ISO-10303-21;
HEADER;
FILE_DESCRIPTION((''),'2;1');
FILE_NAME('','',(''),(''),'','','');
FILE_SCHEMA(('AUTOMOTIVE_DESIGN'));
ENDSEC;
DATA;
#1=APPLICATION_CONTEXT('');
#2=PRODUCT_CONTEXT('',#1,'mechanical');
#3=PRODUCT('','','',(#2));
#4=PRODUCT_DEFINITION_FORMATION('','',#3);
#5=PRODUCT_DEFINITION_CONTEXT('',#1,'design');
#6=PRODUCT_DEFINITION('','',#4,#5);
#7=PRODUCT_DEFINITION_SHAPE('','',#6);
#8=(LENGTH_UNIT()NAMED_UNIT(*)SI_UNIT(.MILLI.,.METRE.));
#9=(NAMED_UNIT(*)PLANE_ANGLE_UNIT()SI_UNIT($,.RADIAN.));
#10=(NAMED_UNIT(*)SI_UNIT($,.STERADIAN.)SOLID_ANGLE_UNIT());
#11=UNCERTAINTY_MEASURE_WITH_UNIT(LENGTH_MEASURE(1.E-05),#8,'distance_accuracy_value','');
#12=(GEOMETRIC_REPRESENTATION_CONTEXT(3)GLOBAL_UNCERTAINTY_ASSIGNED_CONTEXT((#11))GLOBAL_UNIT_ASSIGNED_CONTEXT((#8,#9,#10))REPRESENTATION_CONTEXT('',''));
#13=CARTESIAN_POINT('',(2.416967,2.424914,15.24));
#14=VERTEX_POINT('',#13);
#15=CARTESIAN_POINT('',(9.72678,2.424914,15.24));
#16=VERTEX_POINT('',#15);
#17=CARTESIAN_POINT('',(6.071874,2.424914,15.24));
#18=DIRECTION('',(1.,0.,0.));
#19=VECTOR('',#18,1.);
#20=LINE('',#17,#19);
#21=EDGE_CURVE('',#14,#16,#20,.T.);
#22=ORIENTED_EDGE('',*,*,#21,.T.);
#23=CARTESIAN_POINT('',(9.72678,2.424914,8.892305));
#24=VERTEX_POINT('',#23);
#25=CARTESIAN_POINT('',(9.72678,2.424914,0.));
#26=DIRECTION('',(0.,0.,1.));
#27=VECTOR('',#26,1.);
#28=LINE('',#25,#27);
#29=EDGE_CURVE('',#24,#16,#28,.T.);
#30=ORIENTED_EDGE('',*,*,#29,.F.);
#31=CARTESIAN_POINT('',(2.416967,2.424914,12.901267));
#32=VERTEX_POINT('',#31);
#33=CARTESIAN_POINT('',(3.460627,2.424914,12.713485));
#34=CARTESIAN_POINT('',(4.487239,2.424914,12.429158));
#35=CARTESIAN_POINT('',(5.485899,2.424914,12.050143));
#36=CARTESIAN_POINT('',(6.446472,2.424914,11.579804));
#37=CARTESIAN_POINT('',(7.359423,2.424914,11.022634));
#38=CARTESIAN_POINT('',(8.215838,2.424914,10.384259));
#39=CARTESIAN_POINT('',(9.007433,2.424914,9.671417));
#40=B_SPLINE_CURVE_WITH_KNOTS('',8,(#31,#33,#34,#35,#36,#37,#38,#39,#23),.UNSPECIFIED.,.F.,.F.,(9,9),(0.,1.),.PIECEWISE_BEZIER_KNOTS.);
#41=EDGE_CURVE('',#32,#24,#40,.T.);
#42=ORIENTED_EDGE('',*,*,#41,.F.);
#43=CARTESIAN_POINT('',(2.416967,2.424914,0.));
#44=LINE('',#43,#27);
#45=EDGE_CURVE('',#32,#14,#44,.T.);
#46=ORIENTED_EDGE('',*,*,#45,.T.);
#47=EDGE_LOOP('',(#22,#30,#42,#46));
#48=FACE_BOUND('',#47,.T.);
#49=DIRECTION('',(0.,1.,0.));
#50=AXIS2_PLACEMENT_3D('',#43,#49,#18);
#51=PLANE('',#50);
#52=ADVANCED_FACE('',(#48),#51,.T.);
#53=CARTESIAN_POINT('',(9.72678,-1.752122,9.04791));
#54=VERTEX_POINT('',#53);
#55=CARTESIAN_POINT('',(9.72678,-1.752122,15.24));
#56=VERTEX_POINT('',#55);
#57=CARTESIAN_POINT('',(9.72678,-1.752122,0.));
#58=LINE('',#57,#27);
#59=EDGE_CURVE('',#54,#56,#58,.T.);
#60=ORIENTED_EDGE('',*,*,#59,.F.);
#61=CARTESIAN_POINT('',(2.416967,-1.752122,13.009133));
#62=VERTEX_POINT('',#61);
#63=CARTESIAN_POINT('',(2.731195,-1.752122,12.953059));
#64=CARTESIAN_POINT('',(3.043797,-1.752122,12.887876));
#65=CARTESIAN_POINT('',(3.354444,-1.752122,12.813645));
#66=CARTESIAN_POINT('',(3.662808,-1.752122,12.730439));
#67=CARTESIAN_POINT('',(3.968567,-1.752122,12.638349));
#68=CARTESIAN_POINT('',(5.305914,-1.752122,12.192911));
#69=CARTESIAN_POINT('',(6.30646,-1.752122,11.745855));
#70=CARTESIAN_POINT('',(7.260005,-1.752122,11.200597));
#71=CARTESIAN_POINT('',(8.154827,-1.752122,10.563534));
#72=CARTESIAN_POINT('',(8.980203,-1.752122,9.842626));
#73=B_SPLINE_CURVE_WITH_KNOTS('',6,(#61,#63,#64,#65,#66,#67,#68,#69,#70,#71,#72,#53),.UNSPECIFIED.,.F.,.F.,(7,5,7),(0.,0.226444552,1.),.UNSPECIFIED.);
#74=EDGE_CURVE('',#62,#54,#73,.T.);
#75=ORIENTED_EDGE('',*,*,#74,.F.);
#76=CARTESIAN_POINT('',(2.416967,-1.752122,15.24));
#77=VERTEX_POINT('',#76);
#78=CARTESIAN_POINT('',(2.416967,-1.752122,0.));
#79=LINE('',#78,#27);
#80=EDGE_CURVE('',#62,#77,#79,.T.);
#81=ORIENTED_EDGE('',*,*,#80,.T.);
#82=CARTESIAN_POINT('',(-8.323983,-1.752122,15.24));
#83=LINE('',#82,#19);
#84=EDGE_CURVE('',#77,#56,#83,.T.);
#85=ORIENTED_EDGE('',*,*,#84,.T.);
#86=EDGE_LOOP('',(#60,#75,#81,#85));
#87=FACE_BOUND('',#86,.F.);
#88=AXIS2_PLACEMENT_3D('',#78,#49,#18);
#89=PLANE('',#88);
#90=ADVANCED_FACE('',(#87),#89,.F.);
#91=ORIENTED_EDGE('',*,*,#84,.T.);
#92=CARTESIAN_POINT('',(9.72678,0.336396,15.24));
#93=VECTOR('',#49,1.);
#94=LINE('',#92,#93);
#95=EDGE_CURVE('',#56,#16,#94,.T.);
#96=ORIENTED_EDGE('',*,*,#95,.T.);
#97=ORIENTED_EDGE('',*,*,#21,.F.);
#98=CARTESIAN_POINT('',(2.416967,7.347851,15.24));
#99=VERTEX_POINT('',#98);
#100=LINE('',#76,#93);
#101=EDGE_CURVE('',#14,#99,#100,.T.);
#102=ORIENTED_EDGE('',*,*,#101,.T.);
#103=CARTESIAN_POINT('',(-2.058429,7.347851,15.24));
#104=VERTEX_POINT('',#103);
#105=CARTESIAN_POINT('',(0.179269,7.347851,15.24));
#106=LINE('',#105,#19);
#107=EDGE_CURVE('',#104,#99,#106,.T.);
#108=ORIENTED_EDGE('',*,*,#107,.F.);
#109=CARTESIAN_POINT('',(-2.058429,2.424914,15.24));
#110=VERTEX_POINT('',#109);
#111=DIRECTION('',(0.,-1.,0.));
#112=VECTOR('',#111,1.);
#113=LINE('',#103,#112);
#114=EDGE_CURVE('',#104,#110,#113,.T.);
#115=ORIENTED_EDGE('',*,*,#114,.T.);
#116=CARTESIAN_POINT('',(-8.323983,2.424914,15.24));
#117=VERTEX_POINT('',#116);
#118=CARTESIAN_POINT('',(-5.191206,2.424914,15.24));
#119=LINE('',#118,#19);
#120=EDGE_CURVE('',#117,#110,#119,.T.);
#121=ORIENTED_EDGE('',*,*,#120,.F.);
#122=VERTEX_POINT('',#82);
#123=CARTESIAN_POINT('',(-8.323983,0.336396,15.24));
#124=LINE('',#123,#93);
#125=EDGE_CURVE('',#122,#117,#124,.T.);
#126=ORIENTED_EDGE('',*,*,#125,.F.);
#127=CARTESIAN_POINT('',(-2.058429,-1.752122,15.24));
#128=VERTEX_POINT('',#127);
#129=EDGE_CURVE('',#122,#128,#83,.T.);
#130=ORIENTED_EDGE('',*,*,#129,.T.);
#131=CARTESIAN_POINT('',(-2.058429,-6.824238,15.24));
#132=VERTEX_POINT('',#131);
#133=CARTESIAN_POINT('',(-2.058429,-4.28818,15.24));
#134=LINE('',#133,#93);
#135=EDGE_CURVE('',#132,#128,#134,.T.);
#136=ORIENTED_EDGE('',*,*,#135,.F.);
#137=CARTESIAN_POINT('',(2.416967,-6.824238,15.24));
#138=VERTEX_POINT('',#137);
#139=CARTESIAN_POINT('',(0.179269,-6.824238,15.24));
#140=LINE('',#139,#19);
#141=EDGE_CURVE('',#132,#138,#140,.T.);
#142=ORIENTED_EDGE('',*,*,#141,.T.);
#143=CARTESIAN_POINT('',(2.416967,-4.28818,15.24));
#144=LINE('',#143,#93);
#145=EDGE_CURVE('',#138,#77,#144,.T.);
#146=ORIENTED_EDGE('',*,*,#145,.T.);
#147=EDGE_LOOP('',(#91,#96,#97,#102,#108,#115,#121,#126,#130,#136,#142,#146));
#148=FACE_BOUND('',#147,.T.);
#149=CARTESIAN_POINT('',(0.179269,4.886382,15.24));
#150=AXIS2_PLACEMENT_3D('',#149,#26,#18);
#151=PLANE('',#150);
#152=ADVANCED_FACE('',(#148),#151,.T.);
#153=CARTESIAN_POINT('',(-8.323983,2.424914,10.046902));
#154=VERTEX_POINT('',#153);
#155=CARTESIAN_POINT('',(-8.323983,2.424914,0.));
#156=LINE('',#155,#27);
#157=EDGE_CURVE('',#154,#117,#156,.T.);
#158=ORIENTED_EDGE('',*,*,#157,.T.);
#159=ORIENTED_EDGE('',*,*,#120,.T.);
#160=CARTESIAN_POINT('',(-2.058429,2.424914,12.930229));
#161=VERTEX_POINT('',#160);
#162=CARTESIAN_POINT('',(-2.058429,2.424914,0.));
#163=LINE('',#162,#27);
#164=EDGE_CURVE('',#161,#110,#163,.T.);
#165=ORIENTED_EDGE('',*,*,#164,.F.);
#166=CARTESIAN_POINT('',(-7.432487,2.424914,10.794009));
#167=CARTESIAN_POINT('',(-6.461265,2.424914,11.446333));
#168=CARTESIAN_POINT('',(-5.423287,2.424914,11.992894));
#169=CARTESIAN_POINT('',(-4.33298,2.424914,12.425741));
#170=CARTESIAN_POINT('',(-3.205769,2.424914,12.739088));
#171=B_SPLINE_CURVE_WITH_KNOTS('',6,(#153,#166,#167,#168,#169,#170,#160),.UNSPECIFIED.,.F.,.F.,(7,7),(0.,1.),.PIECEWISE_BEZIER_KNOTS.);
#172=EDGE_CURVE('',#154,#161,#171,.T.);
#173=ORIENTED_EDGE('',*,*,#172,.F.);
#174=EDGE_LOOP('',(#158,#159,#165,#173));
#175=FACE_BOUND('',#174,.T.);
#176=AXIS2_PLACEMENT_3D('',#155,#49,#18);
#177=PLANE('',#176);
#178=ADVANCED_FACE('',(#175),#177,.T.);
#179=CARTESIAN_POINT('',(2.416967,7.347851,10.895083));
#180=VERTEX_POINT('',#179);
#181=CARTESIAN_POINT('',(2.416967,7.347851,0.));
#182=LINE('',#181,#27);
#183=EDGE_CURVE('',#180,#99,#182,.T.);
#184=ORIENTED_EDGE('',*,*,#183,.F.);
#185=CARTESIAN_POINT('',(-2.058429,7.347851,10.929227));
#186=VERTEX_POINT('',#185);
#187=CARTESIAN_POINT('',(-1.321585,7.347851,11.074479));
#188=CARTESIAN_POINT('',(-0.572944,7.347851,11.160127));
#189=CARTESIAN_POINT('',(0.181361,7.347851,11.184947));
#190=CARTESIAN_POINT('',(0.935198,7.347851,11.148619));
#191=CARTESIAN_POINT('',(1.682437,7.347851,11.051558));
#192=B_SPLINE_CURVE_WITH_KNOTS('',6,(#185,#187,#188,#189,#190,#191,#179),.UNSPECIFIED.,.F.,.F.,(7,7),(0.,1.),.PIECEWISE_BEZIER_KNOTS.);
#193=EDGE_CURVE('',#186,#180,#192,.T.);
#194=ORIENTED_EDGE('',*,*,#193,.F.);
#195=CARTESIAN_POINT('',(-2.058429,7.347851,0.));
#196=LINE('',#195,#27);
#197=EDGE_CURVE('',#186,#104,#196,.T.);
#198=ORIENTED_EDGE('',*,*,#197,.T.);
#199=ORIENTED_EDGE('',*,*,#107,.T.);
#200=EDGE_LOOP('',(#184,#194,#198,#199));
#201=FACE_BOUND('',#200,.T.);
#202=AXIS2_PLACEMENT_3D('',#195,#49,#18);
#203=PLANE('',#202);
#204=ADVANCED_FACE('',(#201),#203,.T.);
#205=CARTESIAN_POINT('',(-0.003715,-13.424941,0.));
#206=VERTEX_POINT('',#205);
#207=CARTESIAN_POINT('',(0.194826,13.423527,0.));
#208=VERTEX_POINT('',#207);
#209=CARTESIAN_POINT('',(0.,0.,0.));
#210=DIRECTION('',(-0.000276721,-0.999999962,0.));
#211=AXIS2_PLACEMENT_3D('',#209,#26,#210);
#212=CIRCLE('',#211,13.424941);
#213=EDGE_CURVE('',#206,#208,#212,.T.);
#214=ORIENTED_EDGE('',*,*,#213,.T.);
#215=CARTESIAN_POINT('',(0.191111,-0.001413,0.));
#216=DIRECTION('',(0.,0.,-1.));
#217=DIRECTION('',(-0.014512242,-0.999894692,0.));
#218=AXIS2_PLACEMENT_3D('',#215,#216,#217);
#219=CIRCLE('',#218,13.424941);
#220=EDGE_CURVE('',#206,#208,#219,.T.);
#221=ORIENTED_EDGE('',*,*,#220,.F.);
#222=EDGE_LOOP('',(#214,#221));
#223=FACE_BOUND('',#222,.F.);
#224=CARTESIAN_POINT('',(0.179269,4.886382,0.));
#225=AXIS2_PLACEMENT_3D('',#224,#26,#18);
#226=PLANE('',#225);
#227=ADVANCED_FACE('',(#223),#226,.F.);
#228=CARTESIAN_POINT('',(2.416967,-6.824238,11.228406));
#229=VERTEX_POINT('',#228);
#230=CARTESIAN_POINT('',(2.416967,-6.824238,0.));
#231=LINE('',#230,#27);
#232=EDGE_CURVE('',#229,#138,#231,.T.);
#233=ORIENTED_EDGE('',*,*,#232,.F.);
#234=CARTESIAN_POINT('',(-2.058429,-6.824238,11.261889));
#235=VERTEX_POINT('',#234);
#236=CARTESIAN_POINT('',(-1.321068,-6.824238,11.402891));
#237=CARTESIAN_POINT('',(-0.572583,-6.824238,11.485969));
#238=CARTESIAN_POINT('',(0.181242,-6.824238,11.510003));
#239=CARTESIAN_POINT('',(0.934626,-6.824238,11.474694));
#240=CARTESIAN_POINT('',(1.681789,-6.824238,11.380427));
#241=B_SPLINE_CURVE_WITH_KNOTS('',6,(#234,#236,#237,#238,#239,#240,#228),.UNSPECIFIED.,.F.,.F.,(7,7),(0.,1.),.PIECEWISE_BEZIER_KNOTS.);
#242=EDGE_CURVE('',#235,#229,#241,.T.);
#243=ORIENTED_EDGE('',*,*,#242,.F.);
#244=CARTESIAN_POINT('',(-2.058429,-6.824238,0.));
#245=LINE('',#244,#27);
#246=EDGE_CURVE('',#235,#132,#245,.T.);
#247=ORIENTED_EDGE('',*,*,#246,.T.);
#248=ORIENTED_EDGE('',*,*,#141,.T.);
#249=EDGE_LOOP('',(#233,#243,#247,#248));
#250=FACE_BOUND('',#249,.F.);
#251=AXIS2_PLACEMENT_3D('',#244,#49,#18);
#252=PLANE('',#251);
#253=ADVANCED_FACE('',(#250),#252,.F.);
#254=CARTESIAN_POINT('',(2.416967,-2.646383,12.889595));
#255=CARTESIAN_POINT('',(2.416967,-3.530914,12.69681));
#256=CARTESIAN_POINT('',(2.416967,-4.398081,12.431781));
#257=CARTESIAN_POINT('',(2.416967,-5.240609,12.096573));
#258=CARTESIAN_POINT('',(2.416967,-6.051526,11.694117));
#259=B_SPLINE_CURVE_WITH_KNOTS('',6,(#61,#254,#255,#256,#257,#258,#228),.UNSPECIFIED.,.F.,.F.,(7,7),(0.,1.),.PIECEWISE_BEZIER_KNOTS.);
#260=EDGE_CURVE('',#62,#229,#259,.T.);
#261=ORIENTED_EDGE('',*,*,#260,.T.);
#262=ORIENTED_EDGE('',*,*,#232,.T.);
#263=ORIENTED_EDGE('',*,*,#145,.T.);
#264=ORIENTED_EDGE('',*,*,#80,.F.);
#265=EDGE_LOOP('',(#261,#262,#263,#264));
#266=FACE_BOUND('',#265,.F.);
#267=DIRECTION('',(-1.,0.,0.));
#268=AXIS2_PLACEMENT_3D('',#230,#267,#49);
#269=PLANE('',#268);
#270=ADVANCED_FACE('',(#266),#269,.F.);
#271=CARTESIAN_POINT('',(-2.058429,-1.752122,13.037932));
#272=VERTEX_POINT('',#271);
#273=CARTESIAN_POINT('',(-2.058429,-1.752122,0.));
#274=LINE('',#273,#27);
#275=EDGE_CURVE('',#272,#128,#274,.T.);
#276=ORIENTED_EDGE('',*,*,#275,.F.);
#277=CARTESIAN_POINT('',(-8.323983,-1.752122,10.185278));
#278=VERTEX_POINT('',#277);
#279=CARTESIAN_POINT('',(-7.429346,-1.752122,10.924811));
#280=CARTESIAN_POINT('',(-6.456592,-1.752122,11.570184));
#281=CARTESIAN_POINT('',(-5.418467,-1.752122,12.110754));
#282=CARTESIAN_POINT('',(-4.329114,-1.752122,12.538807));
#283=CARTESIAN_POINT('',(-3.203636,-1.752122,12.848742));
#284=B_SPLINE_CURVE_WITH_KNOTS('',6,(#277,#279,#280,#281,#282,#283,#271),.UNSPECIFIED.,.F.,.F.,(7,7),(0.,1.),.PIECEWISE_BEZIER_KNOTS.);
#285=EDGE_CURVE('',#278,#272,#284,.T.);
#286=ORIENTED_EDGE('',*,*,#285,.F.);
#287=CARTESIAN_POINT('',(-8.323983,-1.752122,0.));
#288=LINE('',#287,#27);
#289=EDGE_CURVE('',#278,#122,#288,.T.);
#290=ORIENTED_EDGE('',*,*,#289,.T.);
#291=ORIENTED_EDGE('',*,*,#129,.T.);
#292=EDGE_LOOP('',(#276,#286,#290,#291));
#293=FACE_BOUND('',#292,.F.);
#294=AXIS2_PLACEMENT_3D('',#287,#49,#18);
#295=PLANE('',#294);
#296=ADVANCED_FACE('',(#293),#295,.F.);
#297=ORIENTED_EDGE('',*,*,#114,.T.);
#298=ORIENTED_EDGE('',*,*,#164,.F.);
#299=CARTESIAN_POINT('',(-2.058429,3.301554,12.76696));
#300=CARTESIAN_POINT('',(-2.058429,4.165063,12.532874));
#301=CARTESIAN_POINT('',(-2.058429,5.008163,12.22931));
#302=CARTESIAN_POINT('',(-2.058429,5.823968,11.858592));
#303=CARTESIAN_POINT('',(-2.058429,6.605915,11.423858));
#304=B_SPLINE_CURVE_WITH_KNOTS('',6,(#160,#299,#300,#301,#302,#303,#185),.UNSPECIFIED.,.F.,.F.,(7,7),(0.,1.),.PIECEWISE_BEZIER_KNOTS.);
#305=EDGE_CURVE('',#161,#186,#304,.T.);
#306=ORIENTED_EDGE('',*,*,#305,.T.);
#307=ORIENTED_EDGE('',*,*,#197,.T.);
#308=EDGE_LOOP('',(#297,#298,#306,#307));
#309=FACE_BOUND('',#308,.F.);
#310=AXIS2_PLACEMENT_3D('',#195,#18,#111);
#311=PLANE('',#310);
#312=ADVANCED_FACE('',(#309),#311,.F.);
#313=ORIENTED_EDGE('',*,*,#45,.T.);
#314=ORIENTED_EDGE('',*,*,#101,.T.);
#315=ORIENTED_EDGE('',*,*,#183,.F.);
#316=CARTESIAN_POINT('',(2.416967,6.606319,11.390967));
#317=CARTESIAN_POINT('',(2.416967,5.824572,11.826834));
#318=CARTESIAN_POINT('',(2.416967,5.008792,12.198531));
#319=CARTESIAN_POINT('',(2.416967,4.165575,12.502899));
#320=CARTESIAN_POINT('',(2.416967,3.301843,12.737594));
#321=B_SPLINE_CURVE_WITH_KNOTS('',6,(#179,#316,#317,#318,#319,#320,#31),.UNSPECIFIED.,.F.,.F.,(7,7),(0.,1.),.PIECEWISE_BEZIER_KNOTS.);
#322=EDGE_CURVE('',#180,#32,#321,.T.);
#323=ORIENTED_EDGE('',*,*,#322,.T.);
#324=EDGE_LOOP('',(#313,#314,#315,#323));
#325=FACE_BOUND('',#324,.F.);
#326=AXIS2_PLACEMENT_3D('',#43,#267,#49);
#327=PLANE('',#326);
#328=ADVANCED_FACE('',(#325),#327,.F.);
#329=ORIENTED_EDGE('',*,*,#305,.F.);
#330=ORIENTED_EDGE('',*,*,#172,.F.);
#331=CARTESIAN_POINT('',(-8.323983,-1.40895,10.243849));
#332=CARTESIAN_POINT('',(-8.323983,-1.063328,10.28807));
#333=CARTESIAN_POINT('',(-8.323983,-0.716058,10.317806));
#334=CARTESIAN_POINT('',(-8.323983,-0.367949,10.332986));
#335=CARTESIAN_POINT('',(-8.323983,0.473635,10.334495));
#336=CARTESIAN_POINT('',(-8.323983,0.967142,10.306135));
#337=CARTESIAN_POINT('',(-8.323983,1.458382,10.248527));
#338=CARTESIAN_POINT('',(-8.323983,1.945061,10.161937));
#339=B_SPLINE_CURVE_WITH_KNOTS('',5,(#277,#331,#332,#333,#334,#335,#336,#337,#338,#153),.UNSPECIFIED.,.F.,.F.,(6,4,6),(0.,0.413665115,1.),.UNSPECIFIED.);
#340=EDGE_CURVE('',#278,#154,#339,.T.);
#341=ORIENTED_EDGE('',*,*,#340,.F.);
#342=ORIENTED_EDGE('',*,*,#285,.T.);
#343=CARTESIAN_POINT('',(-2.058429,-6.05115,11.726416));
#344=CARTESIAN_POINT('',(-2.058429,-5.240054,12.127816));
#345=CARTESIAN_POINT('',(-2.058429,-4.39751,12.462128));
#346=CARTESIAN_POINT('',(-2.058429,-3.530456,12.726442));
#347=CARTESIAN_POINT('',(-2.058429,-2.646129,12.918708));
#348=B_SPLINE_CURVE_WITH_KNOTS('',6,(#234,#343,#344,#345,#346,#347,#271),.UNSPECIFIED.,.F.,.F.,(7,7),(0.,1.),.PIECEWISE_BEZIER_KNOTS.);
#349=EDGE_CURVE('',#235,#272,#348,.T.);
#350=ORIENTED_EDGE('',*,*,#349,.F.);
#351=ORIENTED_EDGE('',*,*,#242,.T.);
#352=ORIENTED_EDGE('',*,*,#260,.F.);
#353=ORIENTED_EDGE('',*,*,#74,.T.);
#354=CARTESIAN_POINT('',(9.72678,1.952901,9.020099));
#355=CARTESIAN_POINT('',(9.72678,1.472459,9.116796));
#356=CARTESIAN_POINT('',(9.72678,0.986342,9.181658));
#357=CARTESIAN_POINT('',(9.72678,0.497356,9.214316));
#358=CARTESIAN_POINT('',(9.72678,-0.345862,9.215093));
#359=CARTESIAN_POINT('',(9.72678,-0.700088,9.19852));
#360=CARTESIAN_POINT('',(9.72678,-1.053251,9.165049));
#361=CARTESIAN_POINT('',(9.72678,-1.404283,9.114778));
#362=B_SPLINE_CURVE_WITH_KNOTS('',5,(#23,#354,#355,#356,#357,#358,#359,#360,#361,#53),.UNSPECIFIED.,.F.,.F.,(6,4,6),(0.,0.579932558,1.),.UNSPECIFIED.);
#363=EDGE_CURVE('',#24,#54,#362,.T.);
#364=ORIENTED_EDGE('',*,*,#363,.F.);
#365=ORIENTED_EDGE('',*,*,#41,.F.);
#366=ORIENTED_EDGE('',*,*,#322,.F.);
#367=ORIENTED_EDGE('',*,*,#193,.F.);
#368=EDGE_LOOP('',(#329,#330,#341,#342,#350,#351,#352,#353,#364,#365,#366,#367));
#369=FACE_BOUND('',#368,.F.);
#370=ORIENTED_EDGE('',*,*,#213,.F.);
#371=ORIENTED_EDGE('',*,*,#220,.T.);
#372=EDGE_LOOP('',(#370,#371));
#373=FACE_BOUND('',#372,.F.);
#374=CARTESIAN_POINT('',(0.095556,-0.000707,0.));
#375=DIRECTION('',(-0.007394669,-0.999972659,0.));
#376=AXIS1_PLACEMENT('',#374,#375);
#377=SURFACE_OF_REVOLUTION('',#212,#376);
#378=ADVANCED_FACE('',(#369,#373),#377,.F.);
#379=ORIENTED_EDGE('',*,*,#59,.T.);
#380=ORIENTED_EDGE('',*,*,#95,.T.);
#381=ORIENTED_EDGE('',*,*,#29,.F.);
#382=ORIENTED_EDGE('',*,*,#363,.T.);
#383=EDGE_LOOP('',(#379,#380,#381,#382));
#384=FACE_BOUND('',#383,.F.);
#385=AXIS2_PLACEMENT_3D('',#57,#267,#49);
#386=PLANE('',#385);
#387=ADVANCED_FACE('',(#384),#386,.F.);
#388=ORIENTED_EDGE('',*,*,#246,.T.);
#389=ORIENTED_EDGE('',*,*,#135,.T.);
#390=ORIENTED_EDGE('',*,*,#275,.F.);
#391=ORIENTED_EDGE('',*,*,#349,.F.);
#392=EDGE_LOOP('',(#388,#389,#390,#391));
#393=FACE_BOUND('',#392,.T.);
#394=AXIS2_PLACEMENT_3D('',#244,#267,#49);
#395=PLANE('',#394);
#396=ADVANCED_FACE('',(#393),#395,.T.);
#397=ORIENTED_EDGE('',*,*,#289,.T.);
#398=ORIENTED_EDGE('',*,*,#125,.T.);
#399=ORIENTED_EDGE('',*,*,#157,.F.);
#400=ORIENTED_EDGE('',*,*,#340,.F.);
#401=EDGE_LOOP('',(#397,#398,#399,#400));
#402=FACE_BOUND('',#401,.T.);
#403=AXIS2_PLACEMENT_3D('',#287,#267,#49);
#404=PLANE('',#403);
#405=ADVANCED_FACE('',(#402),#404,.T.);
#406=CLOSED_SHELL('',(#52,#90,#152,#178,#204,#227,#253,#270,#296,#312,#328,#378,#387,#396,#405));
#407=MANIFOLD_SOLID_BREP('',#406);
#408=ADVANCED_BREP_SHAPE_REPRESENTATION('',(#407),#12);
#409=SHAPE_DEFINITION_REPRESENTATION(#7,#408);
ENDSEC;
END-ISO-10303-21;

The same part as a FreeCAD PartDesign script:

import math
import FreeCAD as App
import Part
import Sketcher

V = App.Vector
Q = App.Units.Quantity


def add_polygon(sketch, points):
    """Adds a closed chain of lines whose ends are joined by coincident constraints."""
    first, n = sketch.GeometryCount, len(points)
    for a, b in zip(points, points[1:] + points[:1]):
        sketch.addGeometry(Part.LineSegment(App.Vector(*a, 0), App.Vector(*b, 0)), False)
    for i in range(n):
        sketch.addConstraint(Sketcher.Constraint("Coincident", first + i, 2, first + (i + 1) % n, 1))

doc = App.newDocument("Part")
body = doc.addObject("PartDesign::Body", "Body")

sketch1 = body.newObject("Sketcher::SketchObject", "Sketch")
sketch1.AttachmentSupport = (doc.getObject("XY_Plane"), [""])
sketch1.MapMode = "FlatFace"
sketch1.addGeometry([
    Part.LineSegment(V(0.194826, 13.423527, 0), V(-0.003715, -13.424941, 0)),
    Part.ArcOfCircle(Part.Circle(V(0, 0, 0), V(0, 0, 1), 13.424941), math.radians(-90.015855), math.radians(89.168481)),
], False)
sketch1.addGeometry(Part.LineSegment(V(0.194826, 13.423527, 0), V(-0.003715, -13.424941, 0)), True)
sketch1.addConstraint([
    Sketcher.Constraint("Coincident", 0, 1, 1, 2),
    Sketcher.Constraint("Coincident", 1, 1, 0, 2),
    Sketcher.Constraint("Coincident", 1, 3, -1, 1),
    Sketcher.Constraint("Coincident", 2, 1, 0, 1),
    Sketcher.Constraint("Coincident", 2, 2, 1, 1),
    Sketcher.Constraint("Radius", 1, Q("13.424941 mm")),
    Sketcher.Constraint("DistanceX", 1, 1, 0, 1, Q("0.198541 mm")),
    Sketcher.Constraint("DistanceY", 1, 1, 0, 1, Q("26.848468 mm")),
])
revolution = body.newObject("PartDesign::Revolution", "Revolution")
revolution.Profile = sketch1
revolution.ReferenceAxis = (sketch1, ["Axis0"])
revolution.Angle = 180

sketch2 = body.newObject("Sketcher::SketchObject", "Sketch001")
sketch2.AttachmentSupport = (doc.getObject("XY_Plane"), [""])
sketch2.MapMode = "FlatFace"
add_polygon(sketch2, [(-2.1, 7.3), (-2.1, 2.4), (-8.3, 2.4), (-8.3, -1.8), (-2.1, -1.8), (-2.1, -6.8), (2.4, -6.8), (2.4, -1.8), (9.7, -1.8), (9.7, 2.4), (2.4, 2.4), (2.4, 7.3)])
sketch2.addConstraint([
    Sketcher.Constraint("Vertical", 0),
    Sketcher.Constraint("Horizontal", 1),
    Sketcher.Constraint("Vertical", 2),
    Sketcher.Constraint("Horizontal", 3),
    Sketcher.Constraint("Vertical", 4),
    Sketcher.Constraint("Horizontal", 5),
    Sketcher.Constraint("Vertical", 6),
    Sketcher.Constraint("Horizontal", 7),
    Sketcher.Constraint("Vertical", 8),
    Sketcher.Constraint("Horizontal", 9),
    Sketcher.Constraint("Vertical", 10),
    Sketcher.Constraint("Horizontal", 11),
    Sketcher.Constraint("Horizontal", 3, 2, 6, 2),
    Sketcher.Constraint("Horizontal", 1, 2, 8, 2),
    Sketcher.Constraint("Vertical", 0, 2, 3, 2),
    Sketcher.Constraint("Vertical", 6, 2, 9, 2),
    Sketcher.Constraint("DistanceX", 1, 2, 1, 1, Q("6.265555 mm")),
    Sketcher.Constraint("DistanceX", 5, 1, 5, 2, Q("4.475396 mm")),
    Sketcher.Constraint("DistanceX", 7, 1, 7, 2, Q("7.309813 mm")),
    Sketcher.Constraint("DistanceY", 0, 2, 0, 1, Q("4.922936 mm")),
    Sketcher.Constraint("DistanceY", 2, 2, 2, 1, Q("4.177036 mm")),
    Sketcher.Constraint("DistanceY", 4, 2, 4, 1, Q("5.072116 mm")),
    Sketcher.Constraint("DistanceX", 0, 2, -1, 1, Q("2.058429 mm")),
    Sketcher.Constraint("DistanceY", 2, 2, -1, 1, Q("1.752122 mm")),
])
pad1 = body.newObject("PartDesign::Pad", "Pad")
pad1.Profile = sketch2
pad1.Length = Q("0.6 in")

doc.recompute()
